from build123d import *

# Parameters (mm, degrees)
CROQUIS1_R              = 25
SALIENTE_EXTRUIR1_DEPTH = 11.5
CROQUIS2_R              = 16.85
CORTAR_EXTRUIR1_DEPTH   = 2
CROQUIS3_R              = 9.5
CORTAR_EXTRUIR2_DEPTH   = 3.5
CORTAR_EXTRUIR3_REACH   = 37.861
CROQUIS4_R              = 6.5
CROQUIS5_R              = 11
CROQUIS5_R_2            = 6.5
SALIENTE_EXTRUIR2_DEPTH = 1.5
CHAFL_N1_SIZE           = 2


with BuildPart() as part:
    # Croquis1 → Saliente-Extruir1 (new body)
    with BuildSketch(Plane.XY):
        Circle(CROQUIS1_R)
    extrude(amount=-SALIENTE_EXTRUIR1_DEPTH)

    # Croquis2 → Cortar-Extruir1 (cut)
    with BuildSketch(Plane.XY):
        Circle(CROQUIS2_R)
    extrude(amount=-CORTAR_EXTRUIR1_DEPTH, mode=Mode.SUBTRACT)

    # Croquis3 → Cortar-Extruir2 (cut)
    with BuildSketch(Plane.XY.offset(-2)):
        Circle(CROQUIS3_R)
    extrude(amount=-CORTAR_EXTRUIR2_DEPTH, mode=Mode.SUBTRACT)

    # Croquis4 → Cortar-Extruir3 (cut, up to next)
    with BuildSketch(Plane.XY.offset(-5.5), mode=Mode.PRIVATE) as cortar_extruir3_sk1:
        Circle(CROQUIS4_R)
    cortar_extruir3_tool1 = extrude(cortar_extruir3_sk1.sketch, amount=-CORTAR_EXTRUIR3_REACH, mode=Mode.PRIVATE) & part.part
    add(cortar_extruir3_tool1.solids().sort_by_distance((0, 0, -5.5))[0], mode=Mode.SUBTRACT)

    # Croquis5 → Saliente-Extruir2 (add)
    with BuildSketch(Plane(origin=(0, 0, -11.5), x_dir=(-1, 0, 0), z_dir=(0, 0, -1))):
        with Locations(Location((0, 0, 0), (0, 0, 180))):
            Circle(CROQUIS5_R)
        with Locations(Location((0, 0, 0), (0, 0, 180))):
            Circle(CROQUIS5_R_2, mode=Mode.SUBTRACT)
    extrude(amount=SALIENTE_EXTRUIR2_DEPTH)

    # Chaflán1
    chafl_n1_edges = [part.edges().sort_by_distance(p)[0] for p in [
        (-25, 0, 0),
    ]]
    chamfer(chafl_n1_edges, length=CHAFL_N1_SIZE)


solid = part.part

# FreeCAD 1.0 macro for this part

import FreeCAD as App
import Part
import Sketcher

V = App.Vector
Q = App.Units.Quantity


def edges_at(feature, points):
    """Names of the edges that pass closest to the given points."""
    edges = feature.Shape.Edges
    near = lambda p: min(range(len(edges)), key=lambda i: edges[i].distToShape(Part.Vertex(*p))[0])
    return sorted({f"Edge{near(p) + 1}" for p in points})

doc = App.newDocument("Part")
body = doc.addObject("PartDesign::Body", "Body")

sketch1 = doc.addObject("Sketcher::SketchObject", "Sketch")
body.addObject(sketch1)
sketch1.AttachmentSupport = (doc.XY_Plane, [""])
sketch1.MapMode = "FlatFace"
sketch1.addGeometry(Part.Circle(V(0, 0, 0), V(0, 0, 1), 25), False)
sketch1.addConstraint([
    Sketcher.Constraint("Coincident", 0, 3, -1, 1),
    Sketcher.Constraint("Diameter", 0, Q("50 mm")),
])
pad1 = doc.addObject("PartDesign::Pad", "Pad")
body.addObject(pad1)
pad1.Profile = sketch1
pad1.Length = 11.5
pad1.Reversed = True

sketch2 = doc.addObject("Sketcher::SketchObject", "Sketch001")
body.addObject(sketch2)
sketch2.AttachmentSupport = (doc.XY_Plane, [""])
sketch2.MapMode = "FlatFace"
sketch2.addGeometry(Part.Circle(V(0, 0, 0), V(0, 0, 1), 16.85), False)
sketch2.addConstraint([
    Sketcher.Constraint("Coincident", 0, 3, -1, 1),
    Sketcher.Constraint("Diameter", 0, Q("33.7 mm")),
])
pocket1 = doc.addObject("PartDesign::Pocket", "Pocket")
body.addObject(pocket1)
pocket1.Profile = sketch2
pocket1.Length = 2

sketch3 = doc.addObject("Sketcher::SketchObject", "Sketch002")
body.addObject(sketch3)
sketch3.AttachmentSupport = (doc.XY_Plane, [""])
sketch3.MapMode = "FlatFace"
sketch3.AttachmentOffset = App.Placement(V(0, 0, -2), App.Rotation())
sketch3.addGeometry(Part.Circle(V(0, 0, 0), V(0, 0, 1), 9.5), False)
sketch3.addConstraint([
    Sketcher.Constraint("Coincident", 0, 3, -1, 1),
    Sketcher.Constraint("Diameter", 0, Q("19 mm")),
])
pocket2 = doc.addObject("PartDesign::Pocket", "Pocket001")
body.addObject(pocket2)
pocket2.Profile = sketch3
pocket2.Length = 3.5

sketch4 = doc.addObject("Sketcher::SketchObject", "Sketch003")
body.addObject(sketch4)
sketch4.AttachmentSupport = (doc.XY_Plane, [""])
sketch4.MapMode = "FlatFace"
sketch4.AttachmentOffset = App.Placement(V(0, 0, -5.5), App.Rotation())
sketch4.addGeometry(Part.Circle(V(0, 0, 0), V(0, 0, 1), 6.5), False)
sketch4.addConstraint([
    Sketcher.Constraint("Coincident", 0, 3, -1, 1),
    Sketcher.Constraint("Diameter", 0, Q("13 mm")),
])
pocket3 = doc.addObject("PartDesign::Pocket", "Pocket002")
body.addObject(pocket3)
pocket3.Profile = sketch4
pocket3.Type = "UpToFirst"

sketch5 = doc.addObject("Sketcher::SketchObject", "Sketch004")
body.addObject(sketch5)
sketch5.AttachmentSupport = (doc.XY_Plane, [""])
sketch5.MapMode = "FlatFace"
sketch5.AttachmentOffset = App.Placement(V(0, 0, -11.5), App.Rotation())
sketch5.addGeometry([
    Part.Circle(V(0, 0, 0), V(0, 0, 1), 11),
    Part.Circle(V(0, 0, 0), V(0, 0, 1), 6.5),
], False)
sketch5.addConstraint([
    Sketcher.Constraint("Coincident", 0, 3, -1, 1),
    Sketcher.Constraint("Coincident", 1, 3, -1, 1),
    Sketcher.Constraint("Diameter", 0, Q("22 mm")),
    Sketcher.Constraint("Diameter", 1, Q("13 mm")),
])
pad2 = doc.addObject("PartDesign::Pad", "Pad001")
body.addObject(pad2)
pad2.Profile = sketch5
pad2.Length = 1.5
pad2.Reversed = True
doc.recompute()

chamfer = doc.addObject("PartDesign::Chamfer", "Chamfer")
body.addObject(chamfer)
chamfer.Base = (pad2, edges_at(pad2, [(-25, 0, 0)]))
chamfer.Size = 2

doc.recompute()
